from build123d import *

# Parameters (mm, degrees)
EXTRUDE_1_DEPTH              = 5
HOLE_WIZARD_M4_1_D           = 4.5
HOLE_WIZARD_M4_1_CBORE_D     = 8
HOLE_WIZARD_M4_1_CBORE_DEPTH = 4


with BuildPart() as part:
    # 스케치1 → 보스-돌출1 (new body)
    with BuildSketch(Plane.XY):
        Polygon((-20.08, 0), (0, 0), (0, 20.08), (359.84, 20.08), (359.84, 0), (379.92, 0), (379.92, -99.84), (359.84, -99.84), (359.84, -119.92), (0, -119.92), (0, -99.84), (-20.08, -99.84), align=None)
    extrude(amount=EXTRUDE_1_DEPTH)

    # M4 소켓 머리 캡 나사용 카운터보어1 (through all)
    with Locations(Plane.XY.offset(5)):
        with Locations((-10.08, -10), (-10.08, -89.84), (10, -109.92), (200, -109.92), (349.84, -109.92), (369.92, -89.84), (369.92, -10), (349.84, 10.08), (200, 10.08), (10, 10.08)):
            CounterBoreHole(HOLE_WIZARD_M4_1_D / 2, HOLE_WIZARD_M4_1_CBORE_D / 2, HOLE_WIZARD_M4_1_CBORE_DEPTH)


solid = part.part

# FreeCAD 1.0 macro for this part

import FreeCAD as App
import Part
import Sketcher
Q = App.Units.Quantity


def add_polygon(sketch, points):
    """Adds a closed chain of lines whose ends are joined by coincident constraints."""
    first, n = sketch.GeometryCount, len(points)
    for a, b in zip(points, points[1:] + points[:1]):
        sketch.addGeometry(Part.LineSegment(App.Vector(*a, 0), App.Vector(*b, 0)), False)
    for i in range(n):
        sketch.addConstraint(Sketcher.Constraint("Coincident", first + i, 2, first + (i + 1) % n, 1))

doc = App.newDocument("Part")
params = doc.addObject("Spreadsheet::Sheet", "Params")
for row, (alias, value) in enumerate([
    ("sketch1_width", "20.08 mm"),
    ("pad1_length", "5 mm"),
    ("sketch2_diameter", "4.5 mm"),
    ("hole_diameter", "4.5 mm"),
    ("hole_cbore_diameter", "8 mm"),
    ("hole_cbore_depth", "4 mm"),
], start=1):
    params.set(f"A{row}", alias)
    params.set(f"B{row}", "=" + value)
    params.setAlias(f"B{row}", alias)

body = doc.addObject("PartDesign::Body", "Body")

# Sketch on XY plane
sketch1 = doc.addObject("Sketcher::SketchObject", "Sketch")
body.addObject(sketch1)
sketch1.AttachmentSupport = (doc.XY_Plane, [""])
sketch1.MapMode = "FlatFace"
add_polygon(sketch1, [(0, 0), (-20, 0), (-20, -100), (0, -100), (0, -120), (360, -120), (360, -100), (380, -100), (380, 0), (360, 0), (360, 20), (0, 20)])  # lines 0-11
sketch1.addConstraint([
    Sketcher.Constraint("Horizontal", 0),
    Sketcher.Constraint("Vertical", 1),
    Sketcher.Constraint("Horizontal", 2),
    Sketcher.Constraint("Vertical", 3),
    Sketcher.Constraint("Horizontal", 4),
    Sketcher.Constraint("Vertical", 5),
    Sketcher.Constraint("Horizontal", 6),
    Sketcher.Constraint("Vertical", 7),
    Sketcher.Constraint("Horizontal", 8),
    Sketcher.Constraint("Vertical", 9),
    Sketcher.Constraint("Horizontal", 10),
    Sketcher.Constraint("Vertical", 11),
    Sketcher.Constraint("Coincident", 11, 2, -1, 1),
    Sketcher.Constraint("PointOnObject", 2, 2, -2),
    Sketcher.Constraint("PointOnObject", 7, 2, -1),
    Sketcher.Constraint("Horizontal", 2, 2, 5, 2),
    Sketcher.Constraint("Vertical", 5, 2, 8, 2),
    Sketcher.Constraint("Equal", 2, 6),
    Sketcher.Constraint("Equal", 8, 3),
    Sketcher.Constraint("Equal", 5, 9),
    Sketcher.Constraint("DistanceX", 1, 2, 6, 2, Q("400 mm")),
    Sketcher.Constraint("DistanceY", 4, 2, 9, 2, Q("140 mm")),
    Sketcher.Constraint("DistanceX", 0, 2, 0, 1, Q("20.08 mm")),
])
sketch1.setExpression("Constraints[34]", "Params.sketch1_width")
pad1 = doc.addObject("PartDesign::Pad", "Pad")
body.addObject(pad1)
pad1.Profile = sketch1
pad1.setExpression("Length", "Params.pad1_length")

# Sketch on XY plane
sketch2 = doc.addObject("Sketcher::SketchObject", "Sketch001")
body.addObject(sketch2)
sketch2.AttachmentSupport = (doc.XY_Plane, [""])
sketch2.MapMode = "FlatFace"
sketch2.AttachmentOffset = App.Placement(App.Vector(0, 0, 5), App.Rotation())
sketch2.addGeometry([
    Part.Circle(App.Vector(-10.1, -10, 0), App.Vector(0, 0, 1), 2.2),  # 0
    Part.Circle(App.Vector(-10.1, -89.8, 0), App.Vector(0, 0, 1), 2.2),  # 1
    Part.Circle(App.Vector(10, -109.9, 0), App.Vector(0, 0, 1), 2.2),  # 2
    Part.Circle(App.Vector(200, -109.9, 0), App.Vector(0, 0, 1), 2.2),  # 3
    Part.Circle(App.Vector(349.8, -109.9, 0), App.Vector(0, 0, 1), 2.2),  # 4
    Part.Circle(App.Vector(369.9, -89.8, 0), App.Vector(0, 0, 1), 2.2),  # 5
    Part.Circle(App.Vector(369.9, -10, 0), App.Vector(0, 0, 1), 2.2),  # 6
    Part.Circle(App.Vector(349.8, 10.1, 0), App.Vector(0, 0, 1), 2.2),  # 7
    Part.Circle(App.Vector(200, 10.1, 0), App.Vector(0, 0, 1), 2.2),  # 8
    Part.Circle(App.Vector(10, 10.1, 0), App.Vector(0, 0, 1), 2.2),  # 9
], False)
sketch2.addConstraint([
    Sketcher.Constraint("Equal", 0, 1),
    Sketcher.Constraint("Equal", 1, 2),
    Sketcher.Constraint("Equal", 2, 3),
    Sketcher.Constraint("Equal", 3, 4),
    Sketcher.Constraint("Equal", 4, 5),
    Sketcher.Constraint("Equal", 5, 6),
    Sketcher.Constraint("Equal", 6, 7),
    Sketcher.Constraint("Equal", 7, 8),
    Sketcher.Constraint("Equal", 8, 9),
    Sketcher.Constraint("Horizontal", 2, 3, 3, 3),
    Sketcher.Constraint("Horizontal", 3, 3, 4, 3),
    Sketcher.Constraint("Horizontal", 1, 3, 5, 3),
    Sketcher.Constraint("Horizontal", 0, 3, 6, 3),
    Sketcher.Constraint("Horizontal", 7, 3, 8, 3),
    Sketcher.Constraint("Horizontal", 8, 3, 9, 3),
    Sketcher.Constraint("Vertical", 0, 3, 1, 3),
    Sketcher.Constraint("Vertical", 5, 3, 6, 3),
    Sketcher.Constraint("Vertical", 4, 3, 7, 3),
    Sketcher.Constraint("Vertical", 3, 3, 8, 3),
    Sketcher.Constraint("Vertical", 2, 3, 9, 3),
    Sketcher.Constraint("Diameter", 0, Q("4.5 mm")),
    Sketcher.Constraint("DistanceY", 0, 3, -1, 1, Q("10 mm")),
    Sketcher.Constraint("DistanceX", -1, 1, 2, 3, Q("10 mm")),
    Sketcher.Constraint("DistanceX", -1, 1, 3, 3, Q("200 mm")),
    Sketcher.Constraint("DistanceX", 1, 3, 5, 3, Q("380 mm")),
    Sketcher.Constraint("DistanceY", 4, 3, 7, 3, Q("120 mm")),
    Sketcher.Constraint("DistanceX", 0, 3, -1, 1, Q("10.08 mm")),
    Sketcher.Constraint("DistanceY", 1, 3, -1, 1, Q("89.84 mm")),
    Sketcher.Constraint("DistanceY", 2, 3, -1, 1, Q("109.92 mm")),
    Sketcher.Constraint("DistanceX", -1, 1, 4, 3, Q("349.84 mm")),
])
sketch2.setExpression("Constraints[20]", "Params.sketch2_diameter")
doc.recompute()
hole = doc.addObject("PartDesign::Hole", "Hole")
body.addObject(hole)
hole.Profile = sketch2
hole.ThreadType = "None"
hole.setExpression("Diameter", "Params.hole_diameter")
hole.DepthType = "ThroughAll"
hole.HoleCutType = "Counterbore"
hole.setExpression("HoleCutDiameter", "Params.hole_cbore_diameter")
hole.setExpression("HoleCutDepth", "Params.hole_cbore_depth")

doc.recompute()
